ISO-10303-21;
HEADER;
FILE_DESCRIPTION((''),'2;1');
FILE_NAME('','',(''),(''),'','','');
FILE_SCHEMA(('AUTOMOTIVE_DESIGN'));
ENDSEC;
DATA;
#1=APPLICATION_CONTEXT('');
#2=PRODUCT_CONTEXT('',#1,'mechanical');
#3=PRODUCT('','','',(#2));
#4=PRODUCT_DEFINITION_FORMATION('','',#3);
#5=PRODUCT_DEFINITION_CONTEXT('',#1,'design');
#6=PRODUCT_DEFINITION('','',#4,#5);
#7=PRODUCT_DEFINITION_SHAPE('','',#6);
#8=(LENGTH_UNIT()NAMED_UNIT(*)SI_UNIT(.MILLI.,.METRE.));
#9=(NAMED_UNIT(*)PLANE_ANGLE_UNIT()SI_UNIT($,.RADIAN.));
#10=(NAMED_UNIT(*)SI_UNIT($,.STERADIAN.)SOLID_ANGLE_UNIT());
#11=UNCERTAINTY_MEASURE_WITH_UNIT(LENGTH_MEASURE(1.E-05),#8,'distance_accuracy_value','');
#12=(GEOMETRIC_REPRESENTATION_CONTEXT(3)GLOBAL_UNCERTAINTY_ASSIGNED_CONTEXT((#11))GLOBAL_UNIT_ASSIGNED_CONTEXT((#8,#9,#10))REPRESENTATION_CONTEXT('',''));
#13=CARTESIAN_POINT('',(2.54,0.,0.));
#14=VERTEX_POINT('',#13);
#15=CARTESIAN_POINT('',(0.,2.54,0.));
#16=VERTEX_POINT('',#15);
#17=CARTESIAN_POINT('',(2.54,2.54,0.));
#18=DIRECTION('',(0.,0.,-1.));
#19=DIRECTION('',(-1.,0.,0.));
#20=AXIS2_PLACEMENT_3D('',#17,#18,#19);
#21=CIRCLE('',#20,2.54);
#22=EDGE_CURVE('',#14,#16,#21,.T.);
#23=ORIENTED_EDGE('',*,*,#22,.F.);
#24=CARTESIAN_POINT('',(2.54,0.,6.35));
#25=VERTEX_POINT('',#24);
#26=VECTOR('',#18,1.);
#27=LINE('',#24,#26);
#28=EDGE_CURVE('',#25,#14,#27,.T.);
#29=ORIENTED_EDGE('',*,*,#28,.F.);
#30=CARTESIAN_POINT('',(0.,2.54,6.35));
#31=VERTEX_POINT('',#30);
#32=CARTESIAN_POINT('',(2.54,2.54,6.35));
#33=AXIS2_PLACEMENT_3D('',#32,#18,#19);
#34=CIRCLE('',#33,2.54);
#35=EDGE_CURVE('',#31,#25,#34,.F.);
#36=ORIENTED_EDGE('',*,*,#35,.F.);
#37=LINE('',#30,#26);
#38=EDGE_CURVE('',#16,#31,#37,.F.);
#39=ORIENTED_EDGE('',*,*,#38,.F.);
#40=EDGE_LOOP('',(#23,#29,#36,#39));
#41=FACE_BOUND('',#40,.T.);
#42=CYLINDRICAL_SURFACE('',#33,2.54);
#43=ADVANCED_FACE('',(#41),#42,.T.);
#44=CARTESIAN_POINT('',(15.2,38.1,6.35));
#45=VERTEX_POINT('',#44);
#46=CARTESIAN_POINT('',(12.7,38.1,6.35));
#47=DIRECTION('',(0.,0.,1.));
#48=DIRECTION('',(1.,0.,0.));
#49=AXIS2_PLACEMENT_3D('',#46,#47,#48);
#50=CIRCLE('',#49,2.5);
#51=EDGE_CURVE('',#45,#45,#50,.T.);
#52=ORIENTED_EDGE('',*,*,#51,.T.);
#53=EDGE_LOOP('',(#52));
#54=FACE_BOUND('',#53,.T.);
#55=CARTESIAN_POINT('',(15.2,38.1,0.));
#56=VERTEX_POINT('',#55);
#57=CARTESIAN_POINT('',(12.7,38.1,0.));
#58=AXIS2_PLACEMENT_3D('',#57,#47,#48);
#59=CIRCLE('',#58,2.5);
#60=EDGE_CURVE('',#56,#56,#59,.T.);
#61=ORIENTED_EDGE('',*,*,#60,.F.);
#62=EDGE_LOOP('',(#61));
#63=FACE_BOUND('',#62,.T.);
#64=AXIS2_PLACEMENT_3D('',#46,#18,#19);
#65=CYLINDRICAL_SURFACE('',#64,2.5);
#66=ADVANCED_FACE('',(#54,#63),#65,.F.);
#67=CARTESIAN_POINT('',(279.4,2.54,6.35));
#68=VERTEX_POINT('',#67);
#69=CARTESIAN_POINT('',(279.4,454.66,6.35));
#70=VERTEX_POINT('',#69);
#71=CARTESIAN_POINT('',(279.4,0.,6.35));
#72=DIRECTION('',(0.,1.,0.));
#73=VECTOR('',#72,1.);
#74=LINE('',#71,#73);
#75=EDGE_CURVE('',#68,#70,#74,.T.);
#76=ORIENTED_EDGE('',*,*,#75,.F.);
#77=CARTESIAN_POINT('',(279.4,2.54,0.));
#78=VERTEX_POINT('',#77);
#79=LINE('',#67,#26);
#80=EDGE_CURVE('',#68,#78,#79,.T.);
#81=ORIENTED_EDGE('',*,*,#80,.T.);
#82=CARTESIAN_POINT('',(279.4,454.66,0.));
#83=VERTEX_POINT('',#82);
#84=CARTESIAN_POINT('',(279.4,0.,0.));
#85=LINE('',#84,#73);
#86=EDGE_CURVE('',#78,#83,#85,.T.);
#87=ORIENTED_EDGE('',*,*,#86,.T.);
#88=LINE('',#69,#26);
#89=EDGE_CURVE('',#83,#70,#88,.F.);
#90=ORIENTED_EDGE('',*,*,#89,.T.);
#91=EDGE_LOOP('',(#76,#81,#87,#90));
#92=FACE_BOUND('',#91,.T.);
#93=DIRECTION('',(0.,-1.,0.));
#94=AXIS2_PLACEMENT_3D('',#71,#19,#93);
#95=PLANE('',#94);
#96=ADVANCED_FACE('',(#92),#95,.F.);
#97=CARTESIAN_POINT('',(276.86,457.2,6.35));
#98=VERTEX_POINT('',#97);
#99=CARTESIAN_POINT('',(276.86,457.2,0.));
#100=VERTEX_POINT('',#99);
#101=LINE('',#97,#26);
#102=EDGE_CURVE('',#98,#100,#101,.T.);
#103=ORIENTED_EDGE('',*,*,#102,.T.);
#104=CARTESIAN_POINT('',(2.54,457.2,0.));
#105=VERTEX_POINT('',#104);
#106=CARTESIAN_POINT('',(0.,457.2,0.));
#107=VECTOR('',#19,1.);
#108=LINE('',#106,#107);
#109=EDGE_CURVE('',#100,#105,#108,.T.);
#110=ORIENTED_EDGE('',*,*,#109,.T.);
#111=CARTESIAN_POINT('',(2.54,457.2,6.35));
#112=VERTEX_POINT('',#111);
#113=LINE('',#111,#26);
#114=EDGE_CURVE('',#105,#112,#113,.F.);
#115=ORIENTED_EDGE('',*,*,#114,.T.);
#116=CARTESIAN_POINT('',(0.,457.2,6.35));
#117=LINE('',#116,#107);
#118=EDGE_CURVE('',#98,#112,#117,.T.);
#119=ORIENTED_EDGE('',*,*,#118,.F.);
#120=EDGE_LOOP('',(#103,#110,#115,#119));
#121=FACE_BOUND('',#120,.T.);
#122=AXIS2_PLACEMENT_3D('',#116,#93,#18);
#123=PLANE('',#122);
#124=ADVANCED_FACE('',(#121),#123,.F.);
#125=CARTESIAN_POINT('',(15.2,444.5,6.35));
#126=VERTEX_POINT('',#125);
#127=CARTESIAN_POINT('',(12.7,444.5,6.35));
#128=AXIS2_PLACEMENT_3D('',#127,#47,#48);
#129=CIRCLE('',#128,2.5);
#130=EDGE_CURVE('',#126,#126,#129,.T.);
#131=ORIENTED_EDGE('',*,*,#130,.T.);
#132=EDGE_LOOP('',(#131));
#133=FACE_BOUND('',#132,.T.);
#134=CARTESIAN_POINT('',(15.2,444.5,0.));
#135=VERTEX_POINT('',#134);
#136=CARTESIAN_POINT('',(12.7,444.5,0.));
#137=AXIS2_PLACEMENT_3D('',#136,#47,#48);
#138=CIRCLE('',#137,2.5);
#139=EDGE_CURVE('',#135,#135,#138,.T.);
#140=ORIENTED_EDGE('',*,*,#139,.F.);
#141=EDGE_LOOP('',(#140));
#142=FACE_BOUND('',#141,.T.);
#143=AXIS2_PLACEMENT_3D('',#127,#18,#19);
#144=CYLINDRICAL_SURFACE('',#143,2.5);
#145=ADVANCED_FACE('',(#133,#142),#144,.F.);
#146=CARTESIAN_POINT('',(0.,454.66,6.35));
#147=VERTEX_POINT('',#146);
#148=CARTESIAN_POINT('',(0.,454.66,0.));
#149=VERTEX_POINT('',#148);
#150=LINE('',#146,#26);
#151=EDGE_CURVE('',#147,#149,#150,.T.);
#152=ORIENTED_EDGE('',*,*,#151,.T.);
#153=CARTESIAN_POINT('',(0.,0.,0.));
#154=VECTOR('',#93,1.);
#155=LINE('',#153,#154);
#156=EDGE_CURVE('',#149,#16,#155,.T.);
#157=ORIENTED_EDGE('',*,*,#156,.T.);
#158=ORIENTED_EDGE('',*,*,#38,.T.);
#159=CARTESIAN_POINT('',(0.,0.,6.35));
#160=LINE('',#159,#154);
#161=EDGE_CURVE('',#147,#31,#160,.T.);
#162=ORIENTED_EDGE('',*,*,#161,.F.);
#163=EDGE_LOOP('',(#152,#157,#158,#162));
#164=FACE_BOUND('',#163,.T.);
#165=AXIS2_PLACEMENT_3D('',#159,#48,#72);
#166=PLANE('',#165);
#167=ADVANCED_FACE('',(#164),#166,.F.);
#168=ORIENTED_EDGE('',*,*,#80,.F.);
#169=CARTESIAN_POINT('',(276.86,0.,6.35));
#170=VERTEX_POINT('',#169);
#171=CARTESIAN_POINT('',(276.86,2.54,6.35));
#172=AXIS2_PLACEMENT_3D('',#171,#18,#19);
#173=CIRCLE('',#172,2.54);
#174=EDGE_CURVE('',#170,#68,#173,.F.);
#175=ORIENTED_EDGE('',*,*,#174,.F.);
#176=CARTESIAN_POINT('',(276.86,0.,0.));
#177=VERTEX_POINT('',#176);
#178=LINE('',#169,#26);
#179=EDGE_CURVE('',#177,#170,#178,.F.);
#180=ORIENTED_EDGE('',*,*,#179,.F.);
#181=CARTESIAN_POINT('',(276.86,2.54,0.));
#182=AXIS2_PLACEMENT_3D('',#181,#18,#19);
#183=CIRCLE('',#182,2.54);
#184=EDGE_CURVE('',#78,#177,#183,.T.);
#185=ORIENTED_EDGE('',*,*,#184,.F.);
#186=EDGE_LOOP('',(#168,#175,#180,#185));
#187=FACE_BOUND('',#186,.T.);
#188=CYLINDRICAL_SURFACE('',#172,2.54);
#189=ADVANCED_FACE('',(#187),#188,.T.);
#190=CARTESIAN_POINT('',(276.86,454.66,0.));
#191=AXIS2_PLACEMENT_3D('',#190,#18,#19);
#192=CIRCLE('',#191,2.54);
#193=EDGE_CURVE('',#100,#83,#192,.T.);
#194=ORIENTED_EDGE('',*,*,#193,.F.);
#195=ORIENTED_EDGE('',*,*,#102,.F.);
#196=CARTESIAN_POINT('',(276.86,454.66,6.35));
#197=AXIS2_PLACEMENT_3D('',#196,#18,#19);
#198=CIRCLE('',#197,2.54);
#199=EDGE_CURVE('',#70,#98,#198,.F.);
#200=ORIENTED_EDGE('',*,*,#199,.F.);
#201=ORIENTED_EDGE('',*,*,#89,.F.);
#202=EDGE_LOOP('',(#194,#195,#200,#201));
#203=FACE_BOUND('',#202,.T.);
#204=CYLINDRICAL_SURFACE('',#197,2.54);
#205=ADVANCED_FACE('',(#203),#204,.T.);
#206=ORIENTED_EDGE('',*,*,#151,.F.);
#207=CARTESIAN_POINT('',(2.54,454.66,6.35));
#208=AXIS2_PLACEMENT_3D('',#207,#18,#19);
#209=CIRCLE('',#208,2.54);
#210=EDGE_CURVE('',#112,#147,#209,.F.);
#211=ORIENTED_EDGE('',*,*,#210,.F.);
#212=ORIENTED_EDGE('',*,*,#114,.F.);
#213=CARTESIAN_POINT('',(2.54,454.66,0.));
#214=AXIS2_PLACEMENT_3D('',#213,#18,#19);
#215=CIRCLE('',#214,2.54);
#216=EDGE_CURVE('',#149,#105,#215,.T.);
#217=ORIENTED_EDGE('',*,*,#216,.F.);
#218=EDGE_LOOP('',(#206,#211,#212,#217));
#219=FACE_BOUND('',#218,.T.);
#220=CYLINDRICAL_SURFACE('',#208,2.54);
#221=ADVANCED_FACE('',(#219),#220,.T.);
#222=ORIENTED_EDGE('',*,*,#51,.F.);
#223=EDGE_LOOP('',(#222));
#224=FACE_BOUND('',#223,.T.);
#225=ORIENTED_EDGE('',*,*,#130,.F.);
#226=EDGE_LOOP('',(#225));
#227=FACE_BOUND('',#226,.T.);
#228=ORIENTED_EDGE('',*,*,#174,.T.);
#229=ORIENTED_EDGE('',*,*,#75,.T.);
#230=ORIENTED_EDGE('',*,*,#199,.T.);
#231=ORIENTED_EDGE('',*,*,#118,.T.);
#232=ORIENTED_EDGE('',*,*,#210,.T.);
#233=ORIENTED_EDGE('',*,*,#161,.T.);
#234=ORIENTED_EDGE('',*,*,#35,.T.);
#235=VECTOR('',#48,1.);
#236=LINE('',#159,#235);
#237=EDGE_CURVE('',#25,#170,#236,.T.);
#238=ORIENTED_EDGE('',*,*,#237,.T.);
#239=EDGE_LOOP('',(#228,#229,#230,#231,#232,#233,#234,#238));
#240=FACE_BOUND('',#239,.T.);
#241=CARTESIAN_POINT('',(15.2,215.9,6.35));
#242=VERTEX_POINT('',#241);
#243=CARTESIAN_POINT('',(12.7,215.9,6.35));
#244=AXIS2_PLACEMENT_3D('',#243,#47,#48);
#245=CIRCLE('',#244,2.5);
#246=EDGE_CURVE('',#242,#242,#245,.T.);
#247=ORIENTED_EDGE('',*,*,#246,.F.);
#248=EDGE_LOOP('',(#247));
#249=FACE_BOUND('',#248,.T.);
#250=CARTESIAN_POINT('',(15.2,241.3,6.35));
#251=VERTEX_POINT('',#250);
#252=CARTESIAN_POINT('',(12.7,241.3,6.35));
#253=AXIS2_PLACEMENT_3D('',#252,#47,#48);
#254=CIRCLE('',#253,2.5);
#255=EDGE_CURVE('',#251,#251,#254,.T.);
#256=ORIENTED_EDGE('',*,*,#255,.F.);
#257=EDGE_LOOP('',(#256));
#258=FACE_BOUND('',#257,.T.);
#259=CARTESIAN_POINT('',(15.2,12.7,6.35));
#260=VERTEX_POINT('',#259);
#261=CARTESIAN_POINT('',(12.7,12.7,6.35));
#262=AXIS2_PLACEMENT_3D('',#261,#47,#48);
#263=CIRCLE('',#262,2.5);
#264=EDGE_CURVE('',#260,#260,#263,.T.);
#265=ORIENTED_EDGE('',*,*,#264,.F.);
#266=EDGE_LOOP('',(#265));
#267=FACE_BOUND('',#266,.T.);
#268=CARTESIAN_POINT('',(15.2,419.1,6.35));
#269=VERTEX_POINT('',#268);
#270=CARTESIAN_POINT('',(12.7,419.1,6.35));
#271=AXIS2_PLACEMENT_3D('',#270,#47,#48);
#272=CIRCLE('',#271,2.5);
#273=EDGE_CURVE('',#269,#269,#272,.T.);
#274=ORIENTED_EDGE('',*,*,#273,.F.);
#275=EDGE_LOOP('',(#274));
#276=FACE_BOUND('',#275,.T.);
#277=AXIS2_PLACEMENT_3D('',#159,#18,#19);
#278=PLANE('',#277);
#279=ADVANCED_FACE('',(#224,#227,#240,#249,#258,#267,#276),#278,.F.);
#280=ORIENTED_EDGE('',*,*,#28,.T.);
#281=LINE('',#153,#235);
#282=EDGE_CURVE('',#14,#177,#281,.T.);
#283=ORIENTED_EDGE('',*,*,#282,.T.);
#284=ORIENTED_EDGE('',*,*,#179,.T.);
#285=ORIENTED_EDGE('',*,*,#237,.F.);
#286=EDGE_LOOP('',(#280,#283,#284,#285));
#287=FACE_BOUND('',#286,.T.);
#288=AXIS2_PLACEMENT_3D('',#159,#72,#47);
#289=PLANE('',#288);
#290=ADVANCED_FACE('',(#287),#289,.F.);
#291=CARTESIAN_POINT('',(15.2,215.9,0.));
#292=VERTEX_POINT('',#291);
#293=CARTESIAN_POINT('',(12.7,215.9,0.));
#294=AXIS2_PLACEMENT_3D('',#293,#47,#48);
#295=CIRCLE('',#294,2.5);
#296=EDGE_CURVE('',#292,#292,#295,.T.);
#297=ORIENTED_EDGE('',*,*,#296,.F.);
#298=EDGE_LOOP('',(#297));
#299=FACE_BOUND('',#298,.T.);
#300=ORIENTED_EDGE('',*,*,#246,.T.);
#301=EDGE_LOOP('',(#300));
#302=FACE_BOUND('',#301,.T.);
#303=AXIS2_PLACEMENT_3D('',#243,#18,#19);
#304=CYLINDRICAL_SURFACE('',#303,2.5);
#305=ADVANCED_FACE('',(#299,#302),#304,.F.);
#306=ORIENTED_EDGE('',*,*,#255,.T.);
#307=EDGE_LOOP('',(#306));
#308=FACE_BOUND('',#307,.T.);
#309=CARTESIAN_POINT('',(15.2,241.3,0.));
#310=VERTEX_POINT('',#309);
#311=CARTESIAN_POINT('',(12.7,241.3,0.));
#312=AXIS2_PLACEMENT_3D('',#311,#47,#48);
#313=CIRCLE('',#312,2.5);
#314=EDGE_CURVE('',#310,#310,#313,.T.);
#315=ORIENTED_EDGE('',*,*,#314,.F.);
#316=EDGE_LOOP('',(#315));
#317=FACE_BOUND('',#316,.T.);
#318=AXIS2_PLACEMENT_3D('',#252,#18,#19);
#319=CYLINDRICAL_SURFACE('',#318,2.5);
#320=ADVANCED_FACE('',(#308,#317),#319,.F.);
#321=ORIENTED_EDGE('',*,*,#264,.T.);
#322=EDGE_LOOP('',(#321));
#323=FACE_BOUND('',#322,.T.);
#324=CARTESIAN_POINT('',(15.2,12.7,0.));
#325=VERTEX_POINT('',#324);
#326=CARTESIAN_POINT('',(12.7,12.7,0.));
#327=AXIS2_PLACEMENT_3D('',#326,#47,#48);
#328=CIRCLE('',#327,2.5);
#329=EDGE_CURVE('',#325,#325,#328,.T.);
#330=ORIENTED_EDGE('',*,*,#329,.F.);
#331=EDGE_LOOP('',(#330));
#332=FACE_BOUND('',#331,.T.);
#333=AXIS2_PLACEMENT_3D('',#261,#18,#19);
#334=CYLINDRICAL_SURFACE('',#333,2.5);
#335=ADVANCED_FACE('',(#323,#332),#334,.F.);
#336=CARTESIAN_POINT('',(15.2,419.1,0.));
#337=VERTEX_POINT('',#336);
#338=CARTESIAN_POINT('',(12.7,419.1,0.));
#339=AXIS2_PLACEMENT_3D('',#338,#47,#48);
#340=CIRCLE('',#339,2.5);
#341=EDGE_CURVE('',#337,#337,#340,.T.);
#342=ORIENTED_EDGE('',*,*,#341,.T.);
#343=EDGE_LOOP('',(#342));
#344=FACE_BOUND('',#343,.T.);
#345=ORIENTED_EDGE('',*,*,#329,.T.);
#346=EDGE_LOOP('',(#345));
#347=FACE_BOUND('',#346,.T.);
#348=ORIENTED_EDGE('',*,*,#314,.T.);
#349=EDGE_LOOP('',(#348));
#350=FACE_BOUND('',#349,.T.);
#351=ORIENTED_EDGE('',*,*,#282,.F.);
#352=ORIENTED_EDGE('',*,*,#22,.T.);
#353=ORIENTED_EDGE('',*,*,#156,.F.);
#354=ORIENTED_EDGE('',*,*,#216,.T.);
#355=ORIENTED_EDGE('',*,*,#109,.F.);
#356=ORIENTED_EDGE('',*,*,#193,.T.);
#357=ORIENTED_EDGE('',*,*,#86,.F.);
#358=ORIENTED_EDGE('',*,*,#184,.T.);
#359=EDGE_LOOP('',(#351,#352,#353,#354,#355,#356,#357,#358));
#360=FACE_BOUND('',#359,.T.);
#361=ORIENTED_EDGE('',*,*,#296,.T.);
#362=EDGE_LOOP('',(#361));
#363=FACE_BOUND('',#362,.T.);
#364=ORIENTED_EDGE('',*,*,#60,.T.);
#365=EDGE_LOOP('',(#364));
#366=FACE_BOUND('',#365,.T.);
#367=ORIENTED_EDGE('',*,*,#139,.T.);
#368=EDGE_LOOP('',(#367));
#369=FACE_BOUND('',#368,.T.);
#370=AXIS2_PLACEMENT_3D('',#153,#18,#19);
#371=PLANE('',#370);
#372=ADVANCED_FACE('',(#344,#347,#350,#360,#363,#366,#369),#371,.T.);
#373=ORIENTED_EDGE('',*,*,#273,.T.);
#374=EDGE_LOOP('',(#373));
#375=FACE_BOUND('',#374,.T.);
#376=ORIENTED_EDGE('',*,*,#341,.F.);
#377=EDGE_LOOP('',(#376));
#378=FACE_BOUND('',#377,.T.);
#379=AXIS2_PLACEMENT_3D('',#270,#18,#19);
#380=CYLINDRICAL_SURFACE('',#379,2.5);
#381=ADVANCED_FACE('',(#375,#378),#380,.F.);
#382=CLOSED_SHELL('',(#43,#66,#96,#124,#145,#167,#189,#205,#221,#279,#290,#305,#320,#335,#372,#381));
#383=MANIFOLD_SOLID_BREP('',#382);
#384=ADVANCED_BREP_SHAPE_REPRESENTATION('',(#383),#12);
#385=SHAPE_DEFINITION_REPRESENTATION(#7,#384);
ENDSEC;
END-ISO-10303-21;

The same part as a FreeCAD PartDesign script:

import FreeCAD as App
import Part
import Sketcher
Q = App.Units.Quantity


def edges_at(feature, points):
    """Names of the edges that pass closest to the given points."""
    edges = feature.Shape.Edges
    near = lambda p: min(range(len(edges)), key=lambda i: edges[i].distToShape(Part.Vertex(*p))[0])
    return sorted({f"Edge{near(p) + 1}" for p in points})

doc = App.newDocument("Part")
body = doc.addObject("PartDesign::Body", "Body")

sketch1 = body.newObject("Sketcher::SketchObject", "Sketch")
sketch1.AttachmentSupport = (doc.getObject("XY_Plane"), [""])
sketch1.MapMode = "FlatFace"
sketch1.addGeometry([
    Part.LineSegment(App.Vector(0, 457.2, 0), App.Vector(0, 0, 0)),
    Part.LineSegment(App.Vector(0, 0, 0), App.Vector(279.4, 0, 0)),
    Part.LineSegment(App.Vector(279.4, 0, 0), App.Vector(279.4, 457.2, 0)),
    Part.LineSegment(App.Vector(279.4, 457.2, 0), App.Vector(0, 457.2, 0)),
    Part.Circle(App.Vector(12.7, 12.7, 0), App.Vector(0, 0, 1), 2.5),
    Part.Circle(App.Vector(12.7, 38.1, 0), App.Vector(0, 0, 1), 2.5),
    Part.Circle(App.Vector(12.7, 215.9, 0), App.Vector(0, 0, 1), 2.5),
    Part.Circle(App.Vector(12.7, 241.3, 0), App.Vector(0, 0, 1), 2.5),
    Part.Circle(App.Vector(12.7, 419.1, 0), App.Vector(0, 0, 1), 2.5),
    Part.Circle(App.Vector(12.7, 444.5, 0), App.Vector(0, 0, 1), 2.5),
], False)
sketch1.addConstraint([
    Sketcher.Constraint("Coincident", 0, 2, 1, 1),
    Sketcher.Constraint("Coincident", 1, 2, 2, 1),
    Sketcher.Constraint("Coincident", 2, 2, 3, 1),
    Sketcher.Constraint("Coincident", 3, 2, 0, 1),
    Sketcher.Constraint("Vertical", 0),
    Sketcher.Constraint("Horizontal", 1),
    Sketcher.Constraint("Vertical", 2),
    Sketcher.Constraint("Horizontal", 3),
    Sketcher.Constraint("Coincident", 0, 2, -1, 1),
    Sketcher.Constraint("Equal", 4, 5),
    Sketcher.Constraint("Equal", 5, 6),
    Sketcher.Constraint("Equal", 6, 7),
    Sketcher.Constraint("Equal", 7, 8),
    Sketcher.Constraint("Equal", 8, 9),
    Sketcher.Constraint("Vertical", 4, 3, 5, 3),
    Sketcher.Constraint("Vertical", 5, 3, 6, 3),
    Sketcher.Constraint("Vertical", 6, 3, 7, 3),
    Sketcher.Constraint("Vertical", 7, 3, 8, 3),
    Sketcher.Constraint("Vertical", 8, 3, 9, 3),
    Sketcher.Constraint("DistanceX", 1, 1, 1, 2, Q("11 in")),
    Sketcher.Constraint("DistanceY", 0, 2, 0, 1, Q("18 in")),
    Sketcher.Constraint("DistanceY", 4, 3, 5, 3, Q("1 in")),
    Sketcher.Constraint("DistanceY", 5, 3, 6, 3, Q("7 in")),
    Sketcher.Constraint("DistanceY", 6, 3, 7, 3, Q("1 in")),
    Sketcher.Constraint("DistanceY", 7, 3, 8, 3, Q("7 in")),
    Sketcher.Constraint("DistanceY", 8, 3, 9, 3, Q("1 in")),
    Sketcher.Constraint("DistanceX", -1, 1, 4, 3, Q("0.5 in")),
    Sketcher.Constraint("DistanceY", -1, 1, 4, 3, Q("0.5 in")),
    Sketcher.Constraint("Diameter", 4, Q("5 mm")),
])
pad1 = body.newObject("PartDesign::Pad", "Pad")
pad1.Profile = sketch1
pad1.Length = Q("0.25 in")
doc.recompute()

fillet = body.newObject("PartDesign::Fillet", "Fillet")
fillet.Base = (pad1, edges_at(pad1, [
    (0, 457.2, 3.175),
    (279.4, 457.2, 3.175),
    (279.4, 0, 3.175),
    (0, 0, 3.175),
]))
fillet.Radius = Q("0.1 in")

doc.recompute()
